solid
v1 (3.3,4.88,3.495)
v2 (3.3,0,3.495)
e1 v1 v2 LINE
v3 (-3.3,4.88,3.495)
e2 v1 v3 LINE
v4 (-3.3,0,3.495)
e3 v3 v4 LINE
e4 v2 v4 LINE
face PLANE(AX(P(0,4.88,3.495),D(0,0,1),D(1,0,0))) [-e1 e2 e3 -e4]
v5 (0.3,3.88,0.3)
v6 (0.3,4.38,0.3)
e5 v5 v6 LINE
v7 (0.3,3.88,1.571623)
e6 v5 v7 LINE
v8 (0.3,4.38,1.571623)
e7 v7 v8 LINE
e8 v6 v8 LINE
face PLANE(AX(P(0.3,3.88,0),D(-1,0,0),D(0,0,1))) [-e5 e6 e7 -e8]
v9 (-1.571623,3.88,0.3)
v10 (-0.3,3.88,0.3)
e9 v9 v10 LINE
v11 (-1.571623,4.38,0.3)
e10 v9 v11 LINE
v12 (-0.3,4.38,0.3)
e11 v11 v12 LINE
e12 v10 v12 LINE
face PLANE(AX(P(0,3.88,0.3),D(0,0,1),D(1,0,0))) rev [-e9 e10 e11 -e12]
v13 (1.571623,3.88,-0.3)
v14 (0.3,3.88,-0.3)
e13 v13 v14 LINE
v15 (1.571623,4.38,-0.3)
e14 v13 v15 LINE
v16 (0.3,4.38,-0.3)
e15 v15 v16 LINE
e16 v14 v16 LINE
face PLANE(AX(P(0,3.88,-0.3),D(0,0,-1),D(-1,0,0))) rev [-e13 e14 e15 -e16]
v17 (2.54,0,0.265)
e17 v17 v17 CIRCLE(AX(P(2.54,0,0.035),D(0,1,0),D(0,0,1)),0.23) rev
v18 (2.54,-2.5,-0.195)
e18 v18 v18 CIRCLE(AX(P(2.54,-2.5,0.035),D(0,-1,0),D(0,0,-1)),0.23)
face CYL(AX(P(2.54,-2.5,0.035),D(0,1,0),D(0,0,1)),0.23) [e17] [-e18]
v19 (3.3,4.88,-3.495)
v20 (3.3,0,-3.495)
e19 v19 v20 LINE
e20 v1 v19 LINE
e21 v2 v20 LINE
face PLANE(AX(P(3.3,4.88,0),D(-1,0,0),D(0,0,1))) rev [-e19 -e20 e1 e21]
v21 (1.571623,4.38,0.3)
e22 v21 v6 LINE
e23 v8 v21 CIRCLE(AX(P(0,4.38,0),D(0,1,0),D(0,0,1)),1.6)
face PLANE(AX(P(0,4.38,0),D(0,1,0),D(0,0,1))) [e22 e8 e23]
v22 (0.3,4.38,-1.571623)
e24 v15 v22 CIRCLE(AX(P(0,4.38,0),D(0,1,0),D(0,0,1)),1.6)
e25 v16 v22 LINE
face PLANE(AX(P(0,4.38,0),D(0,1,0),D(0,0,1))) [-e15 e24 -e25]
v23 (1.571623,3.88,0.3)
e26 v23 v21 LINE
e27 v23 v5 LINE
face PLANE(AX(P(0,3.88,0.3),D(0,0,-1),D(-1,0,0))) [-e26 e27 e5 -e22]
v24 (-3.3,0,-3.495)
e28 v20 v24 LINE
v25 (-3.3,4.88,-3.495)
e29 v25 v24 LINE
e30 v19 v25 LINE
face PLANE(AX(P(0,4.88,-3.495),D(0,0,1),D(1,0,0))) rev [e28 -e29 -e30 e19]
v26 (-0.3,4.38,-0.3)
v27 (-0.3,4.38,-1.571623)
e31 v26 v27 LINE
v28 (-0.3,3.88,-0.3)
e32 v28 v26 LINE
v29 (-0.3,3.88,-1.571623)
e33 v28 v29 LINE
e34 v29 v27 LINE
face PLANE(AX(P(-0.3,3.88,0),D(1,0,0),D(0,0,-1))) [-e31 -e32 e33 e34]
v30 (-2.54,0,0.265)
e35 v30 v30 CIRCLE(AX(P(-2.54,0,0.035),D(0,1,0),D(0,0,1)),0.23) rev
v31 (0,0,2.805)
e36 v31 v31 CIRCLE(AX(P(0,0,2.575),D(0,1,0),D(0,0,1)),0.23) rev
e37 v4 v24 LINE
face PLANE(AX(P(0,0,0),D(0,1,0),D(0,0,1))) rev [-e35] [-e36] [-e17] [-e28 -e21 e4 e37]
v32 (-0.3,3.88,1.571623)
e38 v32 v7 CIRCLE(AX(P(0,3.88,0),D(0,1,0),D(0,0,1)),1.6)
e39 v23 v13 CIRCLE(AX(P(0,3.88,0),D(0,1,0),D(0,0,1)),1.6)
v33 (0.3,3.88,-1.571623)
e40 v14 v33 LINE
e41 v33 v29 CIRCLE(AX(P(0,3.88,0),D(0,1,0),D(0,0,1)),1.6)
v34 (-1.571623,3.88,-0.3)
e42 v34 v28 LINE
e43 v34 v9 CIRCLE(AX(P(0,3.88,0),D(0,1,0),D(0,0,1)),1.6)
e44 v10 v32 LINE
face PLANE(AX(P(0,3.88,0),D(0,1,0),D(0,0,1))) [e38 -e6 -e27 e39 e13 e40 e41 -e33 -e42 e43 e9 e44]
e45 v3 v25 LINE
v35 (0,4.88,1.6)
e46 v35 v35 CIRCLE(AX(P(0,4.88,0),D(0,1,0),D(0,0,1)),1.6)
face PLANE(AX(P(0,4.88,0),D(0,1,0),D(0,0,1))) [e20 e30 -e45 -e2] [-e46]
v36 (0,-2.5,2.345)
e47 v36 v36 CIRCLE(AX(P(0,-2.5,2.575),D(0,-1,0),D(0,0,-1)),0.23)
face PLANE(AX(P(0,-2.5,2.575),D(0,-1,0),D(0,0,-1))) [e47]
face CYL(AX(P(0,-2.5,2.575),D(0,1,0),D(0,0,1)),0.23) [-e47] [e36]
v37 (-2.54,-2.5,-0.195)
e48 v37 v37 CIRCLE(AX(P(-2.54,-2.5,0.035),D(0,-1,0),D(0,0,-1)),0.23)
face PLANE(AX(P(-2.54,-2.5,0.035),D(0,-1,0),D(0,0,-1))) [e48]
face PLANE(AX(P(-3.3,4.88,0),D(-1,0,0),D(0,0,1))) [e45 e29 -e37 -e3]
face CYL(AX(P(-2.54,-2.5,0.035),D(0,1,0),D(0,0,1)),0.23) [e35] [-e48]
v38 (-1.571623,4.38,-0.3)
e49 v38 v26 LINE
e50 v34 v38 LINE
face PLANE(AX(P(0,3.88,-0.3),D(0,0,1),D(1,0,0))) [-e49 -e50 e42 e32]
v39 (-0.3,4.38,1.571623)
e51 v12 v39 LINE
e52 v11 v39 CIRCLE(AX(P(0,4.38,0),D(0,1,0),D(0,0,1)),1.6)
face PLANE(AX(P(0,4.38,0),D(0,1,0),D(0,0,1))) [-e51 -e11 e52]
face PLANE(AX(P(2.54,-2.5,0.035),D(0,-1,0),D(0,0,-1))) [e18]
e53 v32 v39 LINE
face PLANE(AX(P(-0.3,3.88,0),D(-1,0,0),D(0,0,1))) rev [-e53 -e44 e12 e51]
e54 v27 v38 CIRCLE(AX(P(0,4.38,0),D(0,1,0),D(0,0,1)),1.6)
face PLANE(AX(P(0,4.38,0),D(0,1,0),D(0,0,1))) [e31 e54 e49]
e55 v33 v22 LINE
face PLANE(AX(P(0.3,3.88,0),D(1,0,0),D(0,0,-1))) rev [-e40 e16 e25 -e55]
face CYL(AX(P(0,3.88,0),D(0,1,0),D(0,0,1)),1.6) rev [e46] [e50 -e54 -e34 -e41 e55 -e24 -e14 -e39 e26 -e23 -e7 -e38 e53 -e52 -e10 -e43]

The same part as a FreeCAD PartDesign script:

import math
import FreeCAD as App
import Part
import Sketcher
from FreeCAD import Vector
Q = App.Units.Quantity


def add_polygon(sketch, points):
    """Adds a closed chain of lines whose ends are joined by coincident constraints."""
    first, n = sketch.GeometryCount, len(points)
    for a, b in zip(points, points[1:] + points[:1]):
        sketch.addGeometry(Part.LineSegment(App.Vector(*a, 0), App.Vector(*b, 0)), False)
    for i in range(n):
        sketch.addConstraint(Sketcher.Constraint("Coincident", first + i, 2, first + (i + 1) % n, 1))

doc = App.newDocument("Part")
body = doc.addObject("PartDesign::Body", "Body")

# Sketch on XZ plane
sketch1 = doc.addObject("Sketcher::SketchObject", "Sketch")
body.addObject(sketch1)
sketch1.AttachmentSupport = (doc.XZ_Plane, [""])
sketch1.MapMode = "FlatFace"
add_polygon(sketch1, [(-3.3, -3.495), (-3.3, 3.495), (3.3, 3.495), (3.3, -3.495)])  # lines 0-3
sketch1.addConstraint([
    Sketcher.Constraint("Vertical", 0),
    Sketcher.Constraint("Horizontal", 1),
    Sketcher.Constraint("Vertical", 2),
    Sketcher.Constraint("Horizontal", 3),
    Sketcher.Constraint("Symmetric", 0, 2, 2, 2, -1, 1),
    Sketcher.Constraint("DistanceX", 1, 1, 1, 2, Q("6.6 mm")),
    Sketcher.Constraint("DistanceY", 0, 1, 0, 2, Q("6.99 mm")),
])
pad1 = doc.addObject("PartDesign::Pad", "Pad")
body.addObject(pad1)
pad1.Profile = sketch1
pad1.Length = 4.88
pad1.Reversed = True

# Sketch on XZ plane
sketch2 = doc.addObject("Sketcher::SketchObject", "Sketch001")
body.addObject(sketch2)
sketch2.AttachmentSupport = (doc.XZ_Plane, [""])
sketch2.MapMode = "FlatFace"
sketch2.AttachmentOffset = App.Placement(Vector(0, 0, -4.88), App.Rotation())
sketch2.addGeometry([
    Part.ArcOfCircle(Part.Circle(Vector(0, 0, 0), Vector(0, 0, 1), 1.6), math.radians(-100.806923), math.radians(-79.193077)),  # 0
    Part.LineSegment(Vector(-0.3, -1.571623, 0), Vector(-0.3, -0.3, 0)),  # 1
    Part.LineSegment(Vector(-0.3, -0.3, 0), Vector(-1.571623, -0.3, 0)),  # 2
    Part.ArcOfCircle(Part.Circle(Vector(0, 0, 0), Vector(0, 0, 1), 1.6), math.radians(169.193077), math.radians(190.806923)),  # 3
    Part.LineSegment(Vector(-1.571623, 0.3, 0), Vector(-0.3, 0.3, 0)),  # 4
    Part.LineSegment(Vector(-0.3, 0.3, 0), Vector(-0.3, 1.571623, 0)),  # 5
    Part.ArcOfCircle(Part.Circle(Vector(0, 0, 0), Vector(0, 0, 1), 1.6), math.radians(79.193077), math.radians(100.806923)),  # 6
    Part.LineSegment(Vector(0.3, 1.571623, 0), Vector(0.3, 0.3, 0)),  # 7
    Part.LineSegment(Vector(0.3, 0.3, 0), Vector(1.571623, 0.3, 0)),  # 8
    Part.ArcOfCircle(Part.Circle(Vector(0, 0, 0), Vector(0, 0, 1), 1.6), math.radians(0), math.radians(10.806923)),  # 9
    Part.ArcOfCircle(Part.Circle(Vector(0, 0, 0), Vector(0, 0, 1), 1.6), math.radians(-10.806923), math.radians(0)),  # 10
    Part.LineSegment(Vector(1.571623, -0.3, 0), Vector(0.3, -0.3, 0)),  # 11
    Part.LineSegment(Vector(0.3, -0.3, 0), Vector(0.3, -1.571623, 0)),  # 12
], False)
sketch2.addConstraint([
    Sketcher.Constraint("Coincident", 0, 1, 1, 1),
    Sketcher.Constraint("Coincident", 1, 2, 2, 1),
    Sketcher.Constraint("Coincident", 2, 2, 3, 2),
    Sketcher.Constraint("Coincident", 3, 1, 4, 1),
    Sketcher.Constraint("Coincident", 4, 2, 5, 1),
    Sketcher.Constraint("Coincident", 5, 2, 6, 2),
    Sketcher.Constraint("Coincident", 6, 1, 7, 1),
    Sketcher.Constraint("Coincident", 7, 2, 8, 1),
    Sketcher.Constraint("Coincident", 8, 2, 9, 2),
    Sketcher.Constraint("Tangent", 9, 1, 10, 2),
    Sketcher.Constraint("Coincident", 10, 1, 11, 1),
    Sketcher.Constraint("Coincident", 11, 2, 12, 1),
    Sketcher.Constraint("Coincident", 12, 2, 0, 2),
    Sketcher.Constraint("Vertical", 1),
    Sketcher.Constraint("Horizontal", 2),
    Sketcher.Constraint("Horizontal", 4),
    Sketcher.Constraint("Vertical", 5),
    Sketcher.Constraint("Vertical", 7),
    Sketcher.Constraint("Horizontal", 8),
    Sketcher.Constraint("Horizontal", 11),
    Sketcher.Constraint("Vertical", 12),
    Sketcher.Constraint("Coincident", 0, 3, -1, 1),
    Sketcher.Constraint("Coincident", 3, 3, -1, 1),
    Sketcher.Constraint("Coincident", 6, 3, -1, 1),
    Sketcher.Constraint("Coincident", 9, 3, -1, 1),
    Sketcher.Constraint("Equal", 0, 3),
    Sketcher.Constraint("Equal", 3, 6),
    Sketcher.Constraint("Equal", 6, 9),
    Sketcher.Constraint("Equal", 9, 10),
    Sketcher.Constraint("Symmetric", 1, 2, 7, 2, -1, 1),
    Sketcher.Constraint("Symmetric", 4, 2, 11, 2, -1, 1),
    Sketcher.Constraint("Symmetric", 4, 2, 7, 2, -2),
    Sketcher.Constraint("PointOnObject", 9, 1, -1),
    Sketcher.Constraint("Equal", 11, 1),
    Sketcher.Constraint("Radius", 0, Q("1.6 mm")),
    Sketcher.Constraint("DistanceX", 0, 1, -1, 1, Q("0.3 mm")),
])
pocket1 = doc.addObject("PartDesign::Pocket", "Pocket")
body.addObject(pocket1)
pocket1.Profile = sketch2
pocket1.Length = 1
pocket1.Reversed = True

# Sketch on XZ plane
sketch3 = doc.addObject("Sketcher::SketchObject", "Sketch002")
body.addObject(sketch3)
sketch3.AttachmentSupport = (doc.XZ_Plane, [""])
sketch3.MapMode = "FlatFace"
sketch3.AttachmentOffset = App.Placement(Vector(0, 0, -4.88), App.Rotation())
sketch3.addGeometry([
    Part.LineSegment(Vector(-0.3, 0.3, 0), Vector(-1.571623, 0.3, 0)),  # 0
    Part.ArcOfCircle(Part.Circle(Vector(0, 0, 0), Vector(0, 0, 1), 1.6), math.radians(100.806923), math.radians(169.193077)),  # 1
    Part.LineSegment(Vector(-0.3, 1.571623, 0), Vector(-0.3, 0.3, 0)),  # 2
    Part.LineSegment(Vector(-0.3, -0.3, 0), Vector(-0.3, -1.571623, 0)),  # 3
    Part.ArcOfCircle(Part.Circle(Vector(0, 0, 0), Vector(0, 0, 1), 1.6), math.radians(-169.193077), math.radians(-100.806923)),  # 4
    Part.LineSegment(Vector(-1.571623, -0.3, 0), Vector(-0.3, -0.3, 0)),  # 5
    Part.ArcOfCircle(Part.Circle(Vector(0, 0, 0), Vector(0, 0, 1), 1.6), math.radians(-79.193077), math.radians(-10.806923)),  # 6
    Part.LineSegment(Vector(0.3, -1.571623, 0), Vector(0.3, -0.3, 0)),  # 7
    Part.LineSegment(Vector(0.3, -0.3, 0), Vector(1.571623, -0.3, 0)),  # 8
    Part.ArcOfCircle(Part.Circle(Vector(0, 0, 0), Vector(0, 0, 1), 1.6), math.radians(10.806923), math.radians(79.193077)),  # 9
    Part.LineSegment(Vector(1.571623, 0.3, 0), Vector(0.3, 0.3, 0)),  # 10
    Part.LineSegment(Vector(0.3, 0.3, 0), Vector(0.3, 1.571623, 0)),  # 11
], False)
sketch3.addConstraint([
    Sketcher.Constraint("Coincident", 0, 2, 1, 2),
    Sketcher.Constraint("Coincident", 1, 1, 2, 1),
    Sketcher.Constraint("Coincident", 2, 2, 0, 1),
    Sketcher.Constraint("Coincident", 3, 2, 4, 2),
    Sketcher.Constraint("Coincident", 4, 1, 5, 1),
    Sketcher.Constraint("Coincident", 5, 2, 3, 1),
    Sketcher.Constraint("Coincident", 6, 1, 7, 1),
    Sketcher.Constraint("Coincident", 7, 2, 8, 1),
    Sketcher.Constraint("Coincident", 8, 2, 6, 2),
    Sketcher.Constraint("Coincident", 9, 1, 10, 1),
    Sketcher.Constraint("Coincident", 10, 2, 11, 1),
    Sketcher.Constraint("Coincident", 11, 2, 9, 2),
    Sketcher.Constraint("Horizontal", 0),
    Sketcher.Constraint("Vertical", 2),
    Sketcher.Constraint("Vertical", 3),
    Sketcher.Constraint("Horizontal", 5),
    Sketcher.Constraint("Vertical", 7),
    Sketcher.Constraint("Horizontal", 8),
    Sketcher.Constraint("Horizontal", 10),
    Sketcher.Constraint("Vertical", 11),
    Sketcher.Constraint("Coincident", 1, 3, -1, 1),
    Sketcher.Constraint("Coincident", 4, 3, -1, 1),
    Sketcher.Constraint("Coincident", 6, 3, -1, 1),
    Sketcher.Constraint("Coincident", 9, 3, -1, 1),
    Sketcher.Constraint("Equal", 1, 4),
    Sketcher.Constraint("Equal", 4, 6),
    Sketcher.Constraint("Equal", 6, 9),
    Sketcher.Constraint("Symmetric", 2, 2, 7, 2, -1, 1),
    Sketcher.Constraint("Symmetric", 5, 2, 10, 2, -1, 1),
    Sketcher.Constraint("Symmetric", 5, 2, 7, 2, -2),
    Sketcher.Constraint("Equal", 10, 2),
    Sketcher.Constraint("Radius", 1, Q("1.6 mm")),
    Sketcher.Constraint("DistanceY", -1, 1, 0, 2, Q("0.3 mm")),
])
pocket2 = doc.addObject("PartDesign::Pocket", "Pocket001")
body.addObject(pocket2)
pocket2.Profile = sketch3
pocket2.Length = 0.5
pocket2.Reversed = True

# Sketch on XZ plane
sketch4 = doc.addObject("Sketcher::SketchObject", "Sketch003")
body.addObject(sketch4)
sketch4.AttachmentSupport = (doc.XZ_Plane, [""])
sketch4.MapMode = "FlatFace"
sketch4.addGeometry([
    Part.Circle(Vector(0, 2.575, 0), Vector(0, 0, 1), 0.23),
    Part.Circle(Vector(2.54, 0.035, 0), Vector(0, 0, 1), 0.23),
    Part.Circle(Vector(-2.54, 0.035, 0), Vector(0, 0, 1), 0.23),
], False)
sketch4.addConstraint([
    Sketcher.Constraint("Equal", 0, 1),
    Sketcher.Constraint("Equal", 1, 2),
    Sketcher.Constraint("Symmetric", 1, 3, 2, 3, -2),
    Sketcher.Constraint("PointOnObject", 0, 3, -2),
    Sketcher.Constraint("Diameter", 0, Q("0.46 mm")),
    Sketcher.Constraint("DistanceX", -1, 1, 1, 3, Q("2.54 mm")),
    Sketcher.Constraint("DistanceY", 1, 3, 0, 3, Q("2.54 mm")),
    Sketcher.Constraint("DistanceY", -1, 1, 0, 3, Q("2.575 mm")),
])
pad2 = doc.addObject("PartDesign::Pad", "Pad001")
body.addObject(pad2)
pad2.Profile = sketch4
pad2.Length = 2.5

doc.recompute()
